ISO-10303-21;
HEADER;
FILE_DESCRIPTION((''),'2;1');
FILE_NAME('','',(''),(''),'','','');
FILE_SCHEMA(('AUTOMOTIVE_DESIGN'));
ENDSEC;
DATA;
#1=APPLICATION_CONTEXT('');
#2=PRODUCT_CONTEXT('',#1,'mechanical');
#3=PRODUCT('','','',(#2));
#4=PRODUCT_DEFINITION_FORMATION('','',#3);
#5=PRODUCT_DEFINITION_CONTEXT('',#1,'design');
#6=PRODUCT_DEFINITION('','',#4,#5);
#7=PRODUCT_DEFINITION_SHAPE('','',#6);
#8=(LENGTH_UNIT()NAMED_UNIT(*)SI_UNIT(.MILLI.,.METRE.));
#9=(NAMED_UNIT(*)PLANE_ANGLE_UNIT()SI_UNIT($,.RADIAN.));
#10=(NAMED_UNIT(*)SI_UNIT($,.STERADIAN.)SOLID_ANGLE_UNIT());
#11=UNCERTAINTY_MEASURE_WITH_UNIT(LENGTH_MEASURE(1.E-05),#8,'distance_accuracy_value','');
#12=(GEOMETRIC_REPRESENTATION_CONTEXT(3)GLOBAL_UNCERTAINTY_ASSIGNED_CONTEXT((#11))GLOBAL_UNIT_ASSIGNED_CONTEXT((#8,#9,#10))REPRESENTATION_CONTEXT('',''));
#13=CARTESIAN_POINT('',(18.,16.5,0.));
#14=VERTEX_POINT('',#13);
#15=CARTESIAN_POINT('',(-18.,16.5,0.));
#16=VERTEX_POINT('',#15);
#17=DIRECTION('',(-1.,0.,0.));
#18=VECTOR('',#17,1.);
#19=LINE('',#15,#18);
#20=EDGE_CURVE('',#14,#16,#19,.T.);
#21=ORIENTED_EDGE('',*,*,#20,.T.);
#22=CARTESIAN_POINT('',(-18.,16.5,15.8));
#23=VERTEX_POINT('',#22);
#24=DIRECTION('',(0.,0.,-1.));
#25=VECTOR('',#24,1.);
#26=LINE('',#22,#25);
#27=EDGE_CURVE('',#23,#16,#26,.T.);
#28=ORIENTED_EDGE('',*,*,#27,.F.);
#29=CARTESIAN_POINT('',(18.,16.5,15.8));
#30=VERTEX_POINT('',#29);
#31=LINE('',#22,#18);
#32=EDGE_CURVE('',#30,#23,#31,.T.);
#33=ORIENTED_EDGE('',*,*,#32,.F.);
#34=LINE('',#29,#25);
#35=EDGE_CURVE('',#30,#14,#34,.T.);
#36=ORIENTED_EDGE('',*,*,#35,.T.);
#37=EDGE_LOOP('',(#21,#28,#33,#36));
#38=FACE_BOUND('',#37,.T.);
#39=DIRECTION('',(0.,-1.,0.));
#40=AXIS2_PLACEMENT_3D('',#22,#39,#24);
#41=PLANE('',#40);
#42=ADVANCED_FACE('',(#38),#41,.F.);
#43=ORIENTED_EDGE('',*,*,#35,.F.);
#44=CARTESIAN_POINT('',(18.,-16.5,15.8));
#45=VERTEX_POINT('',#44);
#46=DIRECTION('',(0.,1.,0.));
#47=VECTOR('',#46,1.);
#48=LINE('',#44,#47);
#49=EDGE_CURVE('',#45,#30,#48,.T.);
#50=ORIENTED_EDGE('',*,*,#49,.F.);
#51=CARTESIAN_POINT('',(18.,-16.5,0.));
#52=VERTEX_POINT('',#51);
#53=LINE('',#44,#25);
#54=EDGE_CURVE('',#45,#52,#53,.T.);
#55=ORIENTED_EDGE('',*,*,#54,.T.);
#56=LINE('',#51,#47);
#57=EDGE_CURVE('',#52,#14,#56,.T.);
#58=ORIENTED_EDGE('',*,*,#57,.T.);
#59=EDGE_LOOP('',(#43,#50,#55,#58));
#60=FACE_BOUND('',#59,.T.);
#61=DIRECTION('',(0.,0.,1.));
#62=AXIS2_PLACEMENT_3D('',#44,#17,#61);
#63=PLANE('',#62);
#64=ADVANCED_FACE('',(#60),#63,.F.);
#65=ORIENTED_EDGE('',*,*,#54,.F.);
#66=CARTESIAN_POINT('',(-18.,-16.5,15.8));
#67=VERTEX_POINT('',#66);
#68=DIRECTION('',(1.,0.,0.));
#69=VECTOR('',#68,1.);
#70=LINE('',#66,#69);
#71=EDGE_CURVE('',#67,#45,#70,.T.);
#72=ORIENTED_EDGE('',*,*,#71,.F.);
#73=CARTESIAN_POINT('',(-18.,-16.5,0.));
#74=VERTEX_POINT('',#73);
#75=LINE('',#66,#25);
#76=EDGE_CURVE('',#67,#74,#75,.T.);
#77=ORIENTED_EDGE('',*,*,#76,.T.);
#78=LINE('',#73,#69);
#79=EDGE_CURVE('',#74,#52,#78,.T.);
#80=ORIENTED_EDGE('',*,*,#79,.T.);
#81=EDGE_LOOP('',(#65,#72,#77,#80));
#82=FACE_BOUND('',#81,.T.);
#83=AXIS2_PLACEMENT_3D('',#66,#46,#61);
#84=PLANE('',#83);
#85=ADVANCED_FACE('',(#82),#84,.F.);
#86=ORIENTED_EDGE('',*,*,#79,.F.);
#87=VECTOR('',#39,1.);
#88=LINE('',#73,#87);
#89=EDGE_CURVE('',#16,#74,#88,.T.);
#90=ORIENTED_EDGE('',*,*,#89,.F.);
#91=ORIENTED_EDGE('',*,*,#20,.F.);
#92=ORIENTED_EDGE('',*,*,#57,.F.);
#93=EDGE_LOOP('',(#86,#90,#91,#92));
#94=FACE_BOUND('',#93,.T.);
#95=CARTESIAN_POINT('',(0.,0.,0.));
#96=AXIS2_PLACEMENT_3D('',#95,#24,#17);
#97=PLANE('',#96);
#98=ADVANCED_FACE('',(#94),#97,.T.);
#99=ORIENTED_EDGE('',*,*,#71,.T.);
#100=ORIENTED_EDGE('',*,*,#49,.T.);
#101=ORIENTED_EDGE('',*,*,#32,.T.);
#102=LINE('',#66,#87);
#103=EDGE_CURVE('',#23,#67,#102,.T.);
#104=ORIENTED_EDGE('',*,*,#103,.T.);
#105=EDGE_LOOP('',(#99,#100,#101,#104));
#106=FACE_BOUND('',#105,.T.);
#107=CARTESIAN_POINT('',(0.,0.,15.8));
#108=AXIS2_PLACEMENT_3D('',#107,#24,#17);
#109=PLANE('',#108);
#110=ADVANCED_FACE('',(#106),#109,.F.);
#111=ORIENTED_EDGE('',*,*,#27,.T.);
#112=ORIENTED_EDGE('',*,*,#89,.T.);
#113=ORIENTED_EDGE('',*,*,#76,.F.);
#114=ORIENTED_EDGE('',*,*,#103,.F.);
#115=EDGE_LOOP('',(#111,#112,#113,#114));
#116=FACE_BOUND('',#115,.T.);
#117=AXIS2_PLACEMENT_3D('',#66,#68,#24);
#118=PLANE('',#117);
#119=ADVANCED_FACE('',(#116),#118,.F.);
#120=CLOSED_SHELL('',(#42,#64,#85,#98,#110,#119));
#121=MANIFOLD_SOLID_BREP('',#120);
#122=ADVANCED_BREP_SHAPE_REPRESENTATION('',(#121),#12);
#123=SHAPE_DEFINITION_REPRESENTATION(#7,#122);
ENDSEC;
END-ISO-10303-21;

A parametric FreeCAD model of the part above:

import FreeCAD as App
import Part
import Sketcher

doc = App.newDocument("Part")
params = doc.addObject("Spreadsheet::Sheet", "Params")
for row, (alias, value) in enumerate([
    ("sketch1_width", "36 mm"),
    ("sketch1_height", "33 mm"),
    ("pad1_length", "15.8 mm"),
], start=1):
    params.set(f"A{row}", alias)
    params.set(f"B{row}", "=" + value)
    params.setAlias(f"B{row}", alias)

body = doc.addObject("PartDesign::Body", "Body")

sketch1 = body.newObject("Sketcher::SketchObject", "Sketch")
sketch1.AttachmentSupport = (doc.getObject("XY_Plane"), [""])
sketch1.MapMode = "FlatFace"
sketch1.addGeometry([
    Part.LineSegment(App.Vector(-18, 16, 0), App.Vector(-18, -16, 0)),
    Part.LineSegment(App.Vector(-18, -16, 0), App.Vector(18, -16, 0)),
    Part.LineSegment(App.Vector(18, -16, 0), App.Vector(18, 16, 0)),
    Part.LineSegment(App.Vector(18, 16, 0), App.Vector(-18, 16, 0)),
], False)
sketch1.addConstraint([
    Sketcher.Constraint("Coincident", 0, 2, 1, 1),
    Sketcher.Constraint("Coincident", 1, 2, 2, 1),
    Sketcher.Constraint("Coincident", 2, 2, 3, 1),
    Sketcher.Constraint("Coincident", 3, 2, 0, 1),
    Sketcher.Constraint("Vertical", 0),
    Sketcher.Constraint("Horizontal", 1),
    Sketcher.Constraint("Vertical", 2),
    Sketcher.Constraint("Horizontal", 3),
    Sketcher.Constraint("Symmetric", 0, 2, 2, 2, -1, 1),
    Sketcher.Constraint("DistanceX", 1, 1, 1, 2, 36.0),
    Sketcher.Constraint("DistanceY", 0, 2, 0, 1, 33.0),
])
sketch1.setExpression("Constraints[9]", "Params.sketch1_width")
sketch1.setExpression("Constraints[10]", "Params.sketch1_height")
pad1 = body.newObject("PartDesign::Pad", "Pad")
pad1.Profile = sketch1
pad1.setExpression("Length", "Params.pad1_length")

doc.recompute()
